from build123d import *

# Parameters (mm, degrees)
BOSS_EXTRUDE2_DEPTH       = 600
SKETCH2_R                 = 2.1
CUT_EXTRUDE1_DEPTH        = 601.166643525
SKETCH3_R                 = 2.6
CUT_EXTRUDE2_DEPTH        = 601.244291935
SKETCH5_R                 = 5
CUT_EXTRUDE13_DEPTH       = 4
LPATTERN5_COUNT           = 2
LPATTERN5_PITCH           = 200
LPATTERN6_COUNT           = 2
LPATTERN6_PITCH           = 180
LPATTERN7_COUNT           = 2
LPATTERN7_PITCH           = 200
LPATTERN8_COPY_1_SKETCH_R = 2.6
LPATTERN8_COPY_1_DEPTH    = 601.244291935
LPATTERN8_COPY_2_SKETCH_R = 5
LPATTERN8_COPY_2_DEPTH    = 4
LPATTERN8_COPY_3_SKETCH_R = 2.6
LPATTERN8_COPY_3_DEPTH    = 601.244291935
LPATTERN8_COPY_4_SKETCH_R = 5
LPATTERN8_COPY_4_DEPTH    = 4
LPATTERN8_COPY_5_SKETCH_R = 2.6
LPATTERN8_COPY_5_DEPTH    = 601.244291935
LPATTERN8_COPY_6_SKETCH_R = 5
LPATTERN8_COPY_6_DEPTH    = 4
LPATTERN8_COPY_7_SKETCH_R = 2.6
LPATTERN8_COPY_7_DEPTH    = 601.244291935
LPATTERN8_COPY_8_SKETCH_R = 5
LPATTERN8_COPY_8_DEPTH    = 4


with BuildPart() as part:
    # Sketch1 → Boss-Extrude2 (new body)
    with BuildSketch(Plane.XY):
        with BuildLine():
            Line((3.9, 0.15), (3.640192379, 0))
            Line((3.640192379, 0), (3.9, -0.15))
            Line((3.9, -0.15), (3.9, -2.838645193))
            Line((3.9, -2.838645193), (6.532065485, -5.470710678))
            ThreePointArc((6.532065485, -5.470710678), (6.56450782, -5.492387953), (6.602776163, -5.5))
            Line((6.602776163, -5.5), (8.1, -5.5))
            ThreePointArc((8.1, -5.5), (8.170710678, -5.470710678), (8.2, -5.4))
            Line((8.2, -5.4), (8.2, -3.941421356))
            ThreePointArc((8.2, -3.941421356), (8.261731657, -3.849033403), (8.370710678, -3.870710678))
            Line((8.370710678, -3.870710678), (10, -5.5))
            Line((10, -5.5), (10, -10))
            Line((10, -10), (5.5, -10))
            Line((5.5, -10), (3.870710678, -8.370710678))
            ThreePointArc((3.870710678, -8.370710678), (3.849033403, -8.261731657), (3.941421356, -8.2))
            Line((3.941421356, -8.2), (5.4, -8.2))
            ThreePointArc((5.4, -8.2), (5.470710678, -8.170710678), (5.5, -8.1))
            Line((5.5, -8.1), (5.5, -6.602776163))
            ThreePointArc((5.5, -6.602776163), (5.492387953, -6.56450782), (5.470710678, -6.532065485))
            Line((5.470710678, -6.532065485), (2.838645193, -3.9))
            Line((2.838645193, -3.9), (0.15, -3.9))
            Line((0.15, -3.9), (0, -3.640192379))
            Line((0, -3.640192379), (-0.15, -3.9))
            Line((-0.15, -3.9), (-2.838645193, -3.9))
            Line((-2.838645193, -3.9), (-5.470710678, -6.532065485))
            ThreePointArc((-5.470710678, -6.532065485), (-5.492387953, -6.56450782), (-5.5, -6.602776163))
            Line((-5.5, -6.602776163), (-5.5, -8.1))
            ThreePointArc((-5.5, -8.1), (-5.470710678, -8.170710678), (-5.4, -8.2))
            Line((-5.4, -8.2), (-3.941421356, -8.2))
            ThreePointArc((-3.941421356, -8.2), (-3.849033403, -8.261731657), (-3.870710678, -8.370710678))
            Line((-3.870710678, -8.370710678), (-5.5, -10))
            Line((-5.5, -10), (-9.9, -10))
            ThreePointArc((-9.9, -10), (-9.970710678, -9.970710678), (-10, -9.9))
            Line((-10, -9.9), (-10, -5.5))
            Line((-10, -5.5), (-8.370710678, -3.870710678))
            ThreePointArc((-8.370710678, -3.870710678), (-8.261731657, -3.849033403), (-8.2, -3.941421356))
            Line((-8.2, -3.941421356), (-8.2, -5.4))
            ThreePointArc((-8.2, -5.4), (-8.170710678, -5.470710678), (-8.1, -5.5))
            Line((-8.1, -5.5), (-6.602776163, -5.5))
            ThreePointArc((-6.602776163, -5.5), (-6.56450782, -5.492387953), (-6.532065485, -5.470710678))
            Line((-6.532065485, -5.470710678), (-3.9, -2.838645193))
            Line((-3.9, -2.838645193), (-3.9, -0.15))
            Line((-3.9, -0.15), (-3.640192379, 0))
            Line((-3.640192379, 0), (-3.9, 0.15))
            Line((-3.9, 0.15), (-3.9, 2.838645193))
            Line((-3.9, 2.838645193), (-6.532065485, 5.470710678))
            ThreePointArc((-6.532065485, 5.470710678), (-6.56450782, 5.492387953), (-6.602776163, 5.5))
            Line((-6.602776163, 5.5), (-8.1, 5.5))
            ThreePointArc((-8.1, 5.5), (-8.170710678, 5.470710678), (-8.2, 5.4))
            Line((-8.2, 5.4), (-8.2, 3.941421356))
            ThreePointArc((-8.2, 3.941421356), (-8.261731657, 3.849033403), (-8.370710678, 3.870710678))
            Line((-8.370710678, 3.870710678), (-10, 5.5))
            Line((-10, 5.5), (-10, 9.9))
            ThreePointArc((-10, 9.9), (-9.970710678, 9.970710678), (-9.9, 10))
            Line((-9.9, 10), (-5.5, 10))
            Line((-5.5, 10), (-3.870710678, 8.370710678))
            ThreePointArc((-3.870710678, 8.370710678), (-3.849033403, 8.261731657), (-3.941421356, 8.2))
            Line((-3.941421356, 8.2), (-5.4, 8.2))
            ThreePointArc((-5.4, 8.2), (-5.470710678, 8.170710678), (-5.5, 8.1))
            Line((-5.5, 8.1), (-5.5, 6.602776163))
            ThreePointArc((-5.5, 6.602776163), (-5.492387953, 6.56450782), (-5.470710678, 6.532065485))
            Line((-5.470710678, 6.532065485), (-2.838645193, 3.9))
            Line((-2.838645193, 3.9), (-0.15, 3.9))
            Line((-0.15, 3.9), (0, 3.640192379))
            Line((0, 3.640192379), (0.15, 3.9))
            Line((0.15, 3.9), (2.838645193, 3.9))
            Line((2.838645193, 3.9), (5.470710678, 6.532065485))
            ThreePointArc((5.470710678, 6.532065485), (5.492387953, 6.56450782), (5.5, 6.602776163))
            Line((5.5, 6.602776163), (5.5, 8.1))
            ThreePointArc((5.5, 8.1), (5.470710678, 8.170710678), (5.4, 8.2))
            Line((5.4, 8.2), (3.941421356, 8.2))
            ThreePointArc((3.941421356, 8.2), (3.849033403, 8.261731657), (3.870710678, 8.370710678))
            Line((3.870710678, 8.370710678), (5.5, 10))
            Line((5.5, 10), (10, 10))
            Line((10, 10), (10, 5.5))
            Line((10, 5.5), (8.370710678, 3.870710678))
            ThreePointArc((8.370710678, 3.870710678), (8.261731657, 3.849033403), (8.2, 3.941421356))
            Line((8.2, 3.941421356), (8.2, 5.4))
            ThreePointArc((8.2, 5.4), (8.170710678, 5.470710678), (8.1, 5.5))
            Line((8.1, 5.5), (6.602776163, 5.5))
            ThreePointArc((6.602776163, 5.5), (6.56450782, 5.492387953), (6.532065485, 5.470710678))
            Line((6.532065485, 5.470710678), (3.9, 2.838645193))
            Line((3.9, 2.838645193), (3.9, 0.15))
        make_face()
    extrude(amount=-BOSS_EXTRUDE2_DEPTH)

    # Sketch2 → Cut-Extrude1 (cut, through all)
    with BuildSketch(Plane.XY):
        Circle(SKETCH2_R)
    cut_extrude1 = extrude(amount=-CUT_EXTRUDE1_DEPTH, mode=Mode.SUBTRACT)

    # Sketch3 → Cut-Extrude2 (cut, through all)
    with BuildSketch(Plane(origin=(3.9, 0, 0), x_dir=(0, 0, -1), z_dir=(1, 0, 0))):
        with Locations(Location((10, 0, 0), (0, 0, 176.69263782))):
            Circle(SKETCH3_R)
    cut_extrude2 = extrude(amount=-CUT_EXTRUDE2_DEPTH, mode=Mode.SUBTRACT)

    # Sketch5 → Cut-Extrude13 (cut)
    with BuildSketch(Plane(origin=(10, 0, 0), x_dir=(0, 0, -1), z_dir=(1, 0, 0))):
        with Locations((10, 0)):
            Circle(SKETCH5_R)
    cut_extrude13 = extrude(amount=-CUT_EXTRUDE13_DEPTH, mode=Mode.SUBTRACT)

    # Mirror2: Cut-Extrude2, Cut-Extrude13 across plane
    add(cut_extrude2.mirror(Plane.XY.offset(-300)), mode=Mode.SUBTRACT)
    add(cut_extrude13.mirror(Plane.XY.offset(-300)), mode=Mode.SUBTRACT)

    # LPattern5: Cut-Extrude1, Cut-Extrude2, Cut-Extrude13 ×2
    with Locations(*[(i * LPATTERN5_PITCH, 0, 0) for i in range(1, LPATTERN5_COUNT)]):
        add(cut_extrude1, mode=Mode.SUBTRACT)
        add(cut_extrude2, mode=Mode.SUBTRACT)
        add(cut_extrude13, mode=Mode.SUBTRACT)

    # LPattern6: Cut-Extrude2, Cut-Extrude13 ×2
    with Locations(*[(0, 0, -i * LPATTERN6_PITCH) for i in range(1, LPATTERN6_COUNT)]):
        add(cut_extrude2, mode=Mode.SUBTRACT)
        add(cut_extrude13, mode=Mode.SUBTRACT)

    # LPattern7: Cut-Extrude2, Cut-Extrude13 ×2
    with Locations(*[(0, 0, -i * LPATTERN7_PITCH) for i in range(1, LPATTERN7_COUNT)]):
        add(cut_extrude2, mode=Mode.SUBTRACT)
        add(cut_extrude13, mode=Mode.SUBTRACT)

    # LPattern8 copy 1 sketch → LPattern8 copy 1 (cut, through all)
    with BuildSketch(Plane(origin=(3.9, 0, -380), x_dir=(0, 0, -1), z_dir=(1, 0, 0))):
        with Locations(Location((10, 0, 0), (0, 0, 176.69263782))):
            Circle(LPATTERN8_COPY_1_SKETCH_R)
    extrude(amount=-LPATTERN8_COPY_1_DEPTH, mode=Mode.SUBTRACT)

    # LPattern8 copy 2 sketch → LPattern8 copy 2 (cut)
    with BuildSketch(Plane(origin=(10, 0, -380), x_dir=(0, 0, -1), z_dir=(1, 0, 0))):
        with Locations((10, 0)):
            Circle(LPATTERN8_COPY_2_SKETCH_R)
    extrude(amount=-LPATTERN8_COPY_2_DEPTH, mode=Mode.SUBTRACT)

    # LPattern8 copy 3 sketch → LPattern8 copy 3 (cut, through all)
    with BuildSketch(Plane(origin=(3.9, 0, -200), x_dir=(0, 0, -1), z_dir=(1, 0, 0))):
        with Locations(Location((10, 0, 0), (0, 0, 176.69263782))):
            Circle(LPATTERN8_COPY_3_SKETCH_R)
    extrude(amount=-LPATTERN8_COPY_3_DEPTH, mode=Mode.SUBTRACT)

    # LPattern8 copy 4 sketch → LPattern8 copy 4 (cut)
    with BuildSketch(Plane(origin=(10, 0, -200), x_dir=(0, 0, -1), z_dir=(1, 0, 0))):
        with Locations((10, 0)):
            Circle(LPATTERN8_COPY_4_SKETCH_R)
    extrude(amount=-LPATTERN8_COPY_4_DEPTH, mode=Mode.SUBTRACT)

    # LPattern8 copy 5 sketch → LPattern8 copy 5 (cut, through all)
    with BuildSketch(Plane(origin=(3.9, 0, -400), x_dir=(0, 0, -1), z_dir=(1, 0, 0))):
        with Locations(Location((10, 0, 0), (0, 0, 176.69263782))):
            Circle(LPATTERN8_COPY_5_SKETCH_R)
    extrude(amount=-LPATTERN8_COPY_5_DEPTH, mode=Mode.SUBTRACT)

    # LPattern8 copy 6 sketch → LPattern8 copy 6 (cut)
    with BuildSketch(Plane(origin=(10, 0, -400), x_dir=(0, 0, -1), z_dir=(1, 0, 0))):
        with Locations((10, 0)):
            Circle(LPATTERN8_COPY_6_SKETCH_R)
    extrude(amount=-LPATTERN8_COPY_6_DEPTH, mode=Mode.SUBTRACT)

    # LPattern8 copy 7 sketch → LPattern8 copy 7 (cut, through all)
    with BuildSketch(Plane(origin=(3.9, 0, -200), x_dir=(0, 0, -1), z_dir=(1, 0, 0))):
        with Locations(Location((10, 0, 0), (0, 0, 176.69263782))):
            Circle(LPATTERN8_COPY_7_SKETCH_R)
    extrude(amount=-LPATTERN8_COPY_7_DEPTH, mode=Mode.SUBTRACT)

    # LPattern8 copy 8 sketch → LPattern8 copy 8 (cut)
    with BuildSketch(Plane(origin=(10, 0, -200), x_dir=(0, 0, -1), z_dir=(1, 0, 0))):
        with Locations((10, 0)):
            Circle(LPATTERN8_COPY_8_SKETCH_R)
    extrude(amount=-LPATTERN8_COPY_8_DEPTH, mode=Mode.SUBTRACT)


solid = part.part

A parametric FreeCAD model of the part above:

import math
import FreeCAD as App
import Part
import Sketcher
from FreeCAD import Vector
Q = App.Units.Quantity

doc = App.newDocument("Part")
body = doc.addObject("PartDesign::Body", "Body")

# Sketch on XY plane
sketch1 = body.newObject("Sketcher::SketchObject", "Sketch")
sketch1.AttachmentSupport = (doc.getObject("XY_Plane"), [""])
sketch1.MapMode = "FlatFace"
sketch1.addGeometry(Part.LineSegment(Vector(3.64, 0, 0), Vector(3.9, 0.15, 0)), False)
sketch1.addGeometry(Part.LineSegment(Vector(3.9, 0.15, 0), Vector(3.9, 2.84, 0)), False)
sketch1.addGeometry(Part.LineSegment(Vector(3.9, 2.84, 0), Vector(6.53, 5.47, 0)), False)
sketch1.addGeometry(Part.ArcOfCircle(Part.Circle(Vector(6.6, 5.4, 0), Vector(0, 0, 1), 0.1), math.radians(90), math.radians(135)), False)
sketch1.addGeometry(Part.LineSegment(Vector(6.6, 5.5, 0), Vector(8.1, 5.5, 0)), False)
sketch1.addGeometry(Part.ArcOfCircle(Part.Circle(Vector(8.1, 5.4, 0), Vector(0, 0, 1), 0.1), math.radians(0), math.radians(90)), False)
sketch1.addGeometry(Part.LineSegment(Vector(8.2, 5.4, 0), Vector(8.2, 3.94, 0)), False)
sketch1.addGeometry(Part.ArcOfCircle(Part.Circle(Vector(8.3, 3.94, 0), Vector(0, 0, 1), 0.1), math.radians(180), math.radians(315)), False)
sketch1.addGeometry(Part.LineSegment(Vector(8.37, 3.87, 0), Vector(10, 5.5, 0)), False)
sketch1.addGeometry(Part.LineSegment(Vector(10, 5.5, 0), Vector(10, 10, 0)), False)
sketch1.addGeometry(Part.LineSegment(Vector(10, 10, 0), Vector(5.5, 10, 0)), False)
sketch1.addGeometry(Part.LineSegment(Vector(5.5, 10, 0), Vector(3.87, 8.37, 0)), False)
sketch1.addGeometry(Part.ArcOfCircle(Part.Circle(Vector(3.94, 8.3, 0), Vector(0, 0, 1), 0.1), math.radians(135), math.radians(270)), False)
sketch1.addGeometry(Part.LineSegment(Vector(3.94, 8.2, 0), Vector(5.4, 8.2, 0)), False)
sketch1.addGeometry(Part.ArcOfCircle(Part.Circle(Vector(5.4, 8.1, 0), Vector(0, 0, 1), 0.1), math.radians(0), math.radians(90)), False)
sketch1.addGeometry(Part.LineSegment(Vector(5.5, 8.1, 0), Vector(5.5, 6.6, 0)), False)
sketch1.addGeometry(Part.ArcOfCircle(Part.Circle(Vector(5.4, 6.6, 0), Vector(0, 0, 1), 0.1), math.radians(-45), math.radians(0)), False)
sketch1.addGeometry(Part.LineSegment(Vector(5.47, 6.53, 0), Vector(2.84, 3.9, 0)), False)
sketch1.addGeometry(Part.LineSegment(Vector(2.84, 3.9, 0), Vector(0.15, 3.9, 0)), False)
sketch1.addGeometry(Part.LineSegment(Vector(0.15, 3.9, 0), Vector(0, 3.64, 0)), False)
sketch1.addGeometry(Part.LineSegment(Vector(0, 3.64, 0), Vector(-0.15, 3.9, 0)), False)
sketch1.addGeometry(Part.LineSegment(Vector(-0.15, 3.9, 0), Vector(-2.84, 3.9, 0)), False)
sketch1.addGeometry(Part.LineSegment(Vector(-2.84, 3.9, 0), Vector(-5.47, 6.53, 0)), False)
sketch1.addGeometry(Part.ArcOfCircle(Part.Circle(Vector(-5.4, 6.6, 0), Vector(0, 0, 1), 0.1), math.radians(-180), math.radians(-135)), False)
sketch1.addGeometry(Part.LineSegment(Vector(-5.5, 6.6, 0), Vector(-5.5, 8.1, 0)), False)
sketch1.addGeometry(Part.ArcOfCircle(Part.Circle(Vector(-5.4, 8.1, 0), Vector(0, 0, 1), 0.1), math.radians(90), math.radians(180)), False)
sketch1.addGeometry(Part.LineSegment(Vector(-5.4, 8.2, 0), Vector(-3.94, 8.2, 0)), False)
sketch1.addGeometry(Part.ArcOfCircle(Part.Circle(Vector(-3.94, 8.3, 0), Vector(0, 0, 1), 0.1), math.radians(-90), math.radians(45)), False)
sketch1.addGeometry(Part.LineSegment(Vector(-3.87, 8.37, 0), Vector(-5.5, 10, 0)), False)
sketch1.addGeometry(Part.LineSegment(Vector(-5.5, 10, 0), Vector(-9.9, 10, 0)), False)
sketch1.addGeometry(Part.ArcOfCircle(Part.Circle(Vector(-9.9, 9.9, 0), Vector(0, 0, 1), 0.1), math.radians(90), math.radians(180)), False)
sketch1.addGeometry(Part.LineSegment(Vector(-10, 9.9, 0), Vector(-10, 5.5, 0)), False)
sketch1.addGeometry(Part.LineSegment(Vector(-10, 5.5, 0), Vector(-8.37, 3.87, 0)), False)
sketch1.addGeometry(Part.ArcOfCircle(Part.Circle(Vector(-8.3, 3.94, 0), Vector(0, 0, 1), 0.1), math.radians(-135), math.radians(0)), False)
sketch1.addGeometry(Part.LineSegment(Vector(-8.2, 3.94, 0), Vector(-8.2, 5.4, 0)), False)
sketch1.addGeometry(Part.ArcOfCircle(Part.Circle(Vector(-8.1, 5.4, 0), Vector(0, 0, 1), 0.1), math.radians(90), math.radians(180)), False)
sketch1.addGeometry(Part.LineSegment(Vector(-8.1, 5.5, 0), Vector(-6.6, 5.5, 0)), False)
sketch1.addGeometry(Part.ArcOfCircle(Part.Circle(Vector(-6.6, 5.4, 0), Vector(0, 0, 1), 0.1), math.radians(45), math.radians(90)), False)
sketch1.addGeometry(Part.LineSegment(Vector(-6.53, 5.47, 0), Vector(-3.9, 2.84, 0)), False)
sketch1.addGeometry(Part.LineSegment(Vector(-3.9, 2.84, 0), Vector(-3.9, 0.15, 0)), False)
sketch1.addGeometry(Part.LineSegment(Vector(-3.9, 0.15, 0), Vector(-3.64, 0, 0)), False)
sketch1.addGeometry(Part.LineSegment(Vector(-3.64, 0, 0), Vector(-3.9, -0.15, 0)), False)
sketch1.addGeometry(Part.LineSegment(Vector(-3.9, -0.15, 0), Vector(-3.9, -2.84, 0)), False)
sketch1.addGeometry(Part.LineSegment(Vector(-3.9, -2.84, 0), Vector(-6.53, -5.47, 0)), False)
sketch1.addGeometry(Part.ArcOfCircle(Part.Circle(Vector(-6.6, -5.4, 0), Vector(0, 0, 1), 0.1), math.radians(-90), math.radians(-45)), False)
sketch1.addGeometry(Part.LineSegment(Vector(-6.6, -5.5, 0), Vector(-8.1, -5.5, 0)), False)
sketch1.addGeometry(Part.ArcOfCircle(Part.Circle(Vector(-8.1, -5.4, 0), Vector(0, 0, 1), 0.1), math.radians(180), math.radians(270)), False)
sketch1.addGeometry(Part.LineSegment(Vector(-8.2, -5.4, 0), Vector(-8.2, -3.94, 0)), False)
sketch1.addGeometry(Part.ArcOfCircle(Part.Circle(Vector(-8.3, -3.94, 0), Vector(0, 0, 1), 0.1), math.radians(0), math.radians(135)), False)
sketch1.addGeometry(Part.LineSegment(Vector(-8.37, -3.87, 0), Vector(-10, -5.5, 0)), False)
sketch1.addGeometry(Part.LineSegment(Vector(-10, -5.5, 0), Vector(-10, -9.9, 0)), False)
sketch1.addGeometry(Part.ArcOfCircle(Part.Circle(Vector(-9.9, -9.9, 0), Vector(0, 0, 1), 0.1), math.radians(180), math.radians(270)), False)
sketch1.addGeometry(Part.LineSegment(Vector(-9.9, -10, 0), Vector(-5.5, -10, 0)), False)
sketch1.addGeometry(Part.LineSegment(Vector(-5.5, -10, 0), Vector(-3.87, -8.37, 0)), False)
sketch1.addGeometry(Part.ArcOfCircle(Part.Circle(Vector(-3.94, -8.3, 0), Vector(0, 0, 1), 0.1), math.radians(-45), math.radians(90)), False)
sketch1.addGeometry(Part.LineSegment(Vector(-3.94, -8.2, 0), Vector(-5.4, -8.2, 0)), False)
sketch1.addGeometry(Part.ArcOfCircle(Part.Circle(Vector(-5.4, -8.1, 0), Vector(0, 0, 1), 0.1), math.radians(180), math.radians(270)), False)
sketch1.addGeometry(Part.LineSegment(Vector(-5.5, -8.1, 0), Vector(-5.5, -6.6, 0)), False)
sketch1.addGeometry(Part.ArcOfCircle(Part.Circle(Vector(-5.4, -6.6, 0), Vector(0, 0, 1), 0.1), math.radians(135), math.radians(180)), False)
sketch1.addGeometry(Part.LineSegment(Vector(-5.47, -6.53, 0), Vector(-2.84, -3.9, 0)), False)
sketch1.addGeometry(Part.LineSegment(Vector(-2.84, -3.9, 0), Vector(-0.15, -3.9, 0)), False)
sketch1.addGeometry(Part.LineSegment(Vector(-0.15, -3.9, 0), Vector(0, -3.64, 0)), False)
sketch1.addGeometry(Part.LineSegment(Vector(0, -3.64, 0), Vector(0.15, -3.9, 0)), False)
sketch1.addGeometry(Part.LineSegment(Vector(0.15, -3.9, 0), Vector(2.84, -3.9, 0)), False)
sketch1.addGeometry(Part.LineSegment(Vector(2.84, -3.9, 0), Vector(5.47, -6.53, 0)), False)
sketch1.addGeometry(Part.ArcOfCircle(Part.Circle(Vector(5.4, -6.6, 0), Vector(0, 0, 1), 0.1), math.radians(0), math.radians(45)), False)
sketch1.addGeometry(Part.LineSegment(Vector(5.5, -6.6, 0), Vector(5.5, -8.1, 0)), False)
sketch1.addGeometry(Part.ArcOfCircle(Part.Circle(Vector(5.4, -8.1, 0), Vector(0, 0, 1), 0.1), math.radians(-90), math.radians(0)), False)
sketch1.addGeometry(Part.LineSegment(Vector(5.4, -8.2, 0), Vector(3.94, -8.2, 0)), False)
sketch1.addGeometry(Part.ArcOfCircle(Part.Circle(Vector(3.94, -8.3, 0), Vector(0, 0, 1), 0.1), math.radians(90), math.radians(225)), False)
sketch1.addGeometry(Part.LineSegment(Vector(3.87, -8.37, 0), Vector(5.5, -10, 0)), False)
sketch1.addGeometry(Part.LineSegment(Vector(5.5, -10, 0), Vector(10, -10, 0)), False)
sketch1.addGeometry(Part.LineSegment(Vector(10, -10, 0), Vector(10, -5.5, 0)), False)
sketch1.addGeometry(Part.LineSegment(Vector(10, -5.5, 0), Vector(8.37, -3.87, 0)), False)
sketch1.addGeometry(Part.ArcOfCircle(Part.Circle(Vector(8.3, -3.94, 0), Vector(0, 0, 1), 0.1), math.radians(45), math.radians(180)), False)
sketch1.addGeometry(Part.LineSegment(Vector(8.2, -3.94, 0), Vector(8.2, -5.4, 0)), False)
sketch1.addGeometry(Part.ArcOfCircle(Part.Circle(Vector(8.1, -5.4, 0), Vector(0, 0, 1), 0.1), math.radians(-90), math.radians(0)), False)
sketch1.addGeometry(Part.LineSegment(Vector(8.1, -5.5, 0), Vector(6.6, -5.5, 0)), False)
sketch1.addGeometry(Part.ArcOfCircle(Part.Circle(Vector(6.6, -5.4, 0), Vector(0, 0, 1), 0.1), math.radians(-135), math.radians(-90)), False)
sketch1.addGeometry(Part.LineSegment(Vector(6.53, -5.47, 0), Vector(3.9, -2.84, 0)), False)
sketch1.addGeometry(Part.LineSegment(Vector(3.9, -2.84, 0), Vector(3.9, -0.15, 0)), False)
sketch1.addGeometry(Part.LineSegment(Vector(3.9, -0.15, 0), Vector(3.64, 0, 0)), False)
sketch1.addConstraint(Sketcher.Constraint("Coincident", 0, 2, 1, 1))
sketch1.addConstraint(Sketcher.Constraint("Coincident", 1, 2, 2, 1))
sketch1.addConstraint(Sketcher.Constraint("Tangent", 2, 2, 3, 2))
sketch1.addConstraint(Sketcher.Constraint("Tangent", 3, 1, 4, 1))
sketch1.addConstraint(Sketcher.Constraint("Tangent", 4, 2, 5, 2))
sketch1.addConstraint(Sketcher.Constraint("Tangent", 5, 1, 6, 1))
sketch1.addConstraint(Sketcher.Constraint("Tangent", 6, 2, 7, 1))
sketch1.addConstraint(Sketcher.Constraint("Tangent", 7, 2, 8, 1))
sketch1.addConstraint(Sketcher.Constraint("Coincident", 8, 2, 9, 1))
sketch1.addConstraint(Sketcher.Constraint("Coincident", 9, 2, 10, 1))
sketch1.addConstraint(Sketcher.Constraint("Coincident", 10, 2, 11, 1))
sketch1.addConstraint(Sketcher.Constraint("Tangent", 11, 2, 12, 1))
sketch1.addConstraint(Sketcher.Constraint("Tangent", 12, 2, 13, 1))
sketch1.addConstraint(Sketcher.Constraint("Tangent", 13, 2, 14, 2))
sketch1.addConstraint(Sketcher.Constraint("Tangent", 14, 1, 15, 1))
sketch1.addConstraint(Sketcher.Constraint("Tangent", 15, 2, 16, 2))
sketch1.addConstraint(Sketcher.Constraint("Tangent", 16, 1, 17, 1))
sketch1.addConstraint(Sketcher.Constraint("Coincident", 17, 2, 18, 1))
sketch1.addConstraint(Sketcher.Constraint("Coincident", 18, 2, 19, 1))
sketch1.addConstraint(Sketcher.Constraint("Coincident", 19, 2, 20, 1))
sketch1.addConstraint(Sketcher.Constraint("Coincident", 20, 2, 21, 1))
sketch1.addConstraint(Sketcher.Constraint("Coincident", 21, 2, 22, 1))
sketch1.addConstraint(Sketcher.Constraint("Tangent", 22, 2, 23, 2))
sketch1.addConstraint(Sketcher.Constraint("Tangent", 23, 1, 24, 1))
sketch1.addConstraint(Sketcher.Constraint("Tangent", 24, 2, 25, 2))
sketch1.addConstraint(Sketcher.Constraint("Tangent", 25, 1, 26, 1))
sketch1.addConstraint(Sketcher.Constraint("Tangent", 26, 2, 27, 1))
sketch1.addConstraint(Sketcher.Constraint("Tangent", 27, 2, 28, 1))
sketch1.addConstraint(Sketcher.Constraint("Coincident", 28, 2, 29, 1))
sketch1.addConstraint(Sketcher.Constraint("Tangent", 29, 2, 30, 1))
sketch1.addConstraint(Sketcher.Constraint("Tangent", 30, 2, 31, 1))
sketch1.addConstraint(Sketcher.Constraint("Coincident", 31, 2, 32, 1))
sketch1.addConstraint(Sketcher.Constraint("Tangent", 32, 2, 33, 1))
sketch1.addConstraint(Sketcher.Constraint("Tangent", 33, 2, 34, 1))
sketch1.addConstraint(Sketcher.Constraint("Tangent", 34, 2, 35, 2))
sketch1.addConstraint(Sketcher.Constraint("Tangent", 35, 1, 36, 1))
sketch1.addConstraint(Sketcher.Constraint("Tangent", 36, 2, 37, 2))
sketch1.addConstraint(Sketcher.Constraint("Tangent", 37, 1, 38, 1))
sketch1.addConstraint(Sketcher.Constraint("Coincident", 38, 2, 39, 1))
sketch1.addConstraint(Sketcher.Constraint("Coincident", 39, 2, 40, 1))
sketch1.addConstraint(Sketcher.Constraint("Coincident", 40, 2, 41, 1))
sketch1.addConstraint(Sketcher.Constraint("Coincident", 41, 2, 42, 1))
sketch1.addConstraint(Sketcher.Constraint("Coincident", 42, 2, 43, 1))
sketch1.addConstraint(Sketcher.Constraint("Tangent", 43, 2, 44, 2))
sketch1.addConstraint(Sketcher.Constraint("Tangent", 44, 1, 45, 1))
sketch1.addConstraint(Sketcher.Constraint("Tangent", 45, 2, 46, 2))
sketch1.addConstraint(Sketcher.Constraint("Tangent", 46, 1, 47, 1))
sketch1.addConstraint(Sketcher.Constraint("Tangent", 47, 2, 48, 1))
sketch1.addConstraint(Sketcher.Constraint("Tangent", 48, 2, 49, 1))
sketch1.addConstraint(Sketcher.Constraint("Coincident", 49, 2, 50, 1))
sketch1.addConstraint(Sketcher.Constraint("Tangent", 50, 2, 51, 1))
sketch1.addConstraint(Sketcher.Constraint("Tangent", 51, 2, 52, 1))
sketch1.addConstraint(Sketcher.Constraint("Coincident", 52, 2, 53, 1))
sketch1.addConstraint(Sketcher.Constraint("Tangent", 53, 2, 54, 1))
sketch1.addConstraint(Sketcher.Constraint("Tangent", 54, 2, 55, 1))
sketch1.addConstraint(Sketcher.Constraint("Tangent", 55, 2, 56, 2))
sketch1.addConstraint(Sketcher.Constraint("Tangent", 56, 1, 57, 1))
sketch1.addConstraint(Sketcher.Constraint("Tangent", 57, 2, 58, 2))
sketch1.addConstraint(Sketcher.Constraint("Tangent", 58, 1, 59, 1))
sketch1.addConstraint(Sketcher.Constraint("Coincident", 59, 2, 60, 1))
sketch1.addConstraint(Sketcher.Constraint("Coincident", 60, 2, 61, 1))
sketch1.addConstraint(Sketcher.Constraint("Coincident", 61, 2, 62, 1))
sketch1.addConstraint(Sketcher.Constraint("Coincident", 62, 2, 63, 1))
sketch1.addConstraint(Sketcher.Constraint("Coincident", 63, 2, 64, 1))
sketch1.addConstraint(Sketcher.Constraint("Tangent", 64, 2, 65, 2))
sketch1.addConstraint(Sketcher.Constraint("Tangent", 65, 1, 66, 1))
sketch1.addConstraint(Sketcher.Constraint("Tangent", 66, 2, 67, 2))
sketch1.addConstraint(Sketcher.Constraint("Tangent", 67, 1, 68, 1))
sketch1.addConstraint(Sketcher.Constraint("Tangent", 68, 2, 69, 1))
sketch1.addConstraint(Sketcher.Constraint("Tangent", 69, 2, 70, 1))
sketch1.addConstraint(Sketcher.Constraint("Coincident", 70, 2, 71, 1))
sketch1.addConstraint(Sketcher.Constraint("Coincident", 71, 2, 72, 1))
sketch1.addConstraint(Sketcher.Constraint("Coincident", 72, 2, 73, 1))
sketch1.addConstraint(Sketcher.Constraint("Tangent", 73, 2, 74, 1))
sketch1.addConstraint(Sketcher.Constraint("Tangent", 74, 2, 75, 1))
sketch1.addConstraint(Sketcher.Constraint("Tangent", 75, 2, 76, 2))
sketch1.addConstraint(Sketcher.Constraint("Tangent", 76, 1, 77, 1))
sketch1.addConstraint(Sketcher.Constraint("Tangent", 77, 2, 78, 2))
sketch1.addConstraint(Sketcher.Constraint("Tangent", 78, 1, 79, 1))
sketch1.addConstraint(Sketcher.Constraint("Coincident", 79, 2, 80, 1))
sketch1.addConstraint(Sketcher.Constraint("Coincident", 80, 2, 81, 1))
sketch1.addConstraint(Sketcher.Constraint("Coincident", 81, 2, 0, 1))
sketch1.addConstraint(Sketcher.Constraint("Vertical", 1))
sketch1.addConstraint(Sketcher.Constraint("Horizontal", 4))
sketch1.addConstraint(Sketcher.Constraint("Vertical", 6))
sketch1.addConstraint(Sketcher.Constraint("Vertical", 9))
sketch1.addConstraint(Sketcher.Constraint("Horizontal", 10))
sketch1.addConstraint(Sketcher.Constraint("Horizontal", 13))
sketch1.addConstraint(Sketcher.Constraint("Vertical", 15))
sketch1.addConstraint(Sketcher.Constraint("Horizontal", 18))
sketch1.addConstraint(Sketcher.Constraint("Horizontal", 21))
sketch1.addConstraint(Sketcher.Constraint("Vertical", 24))
sketch1.addConstraint(Sketcher.Constraint("Horizontal", 26))
sketch1.addConstraint(Sketcher.Constraint("Horizontal", 29))
sketch1.addConstraint(Sketcher.Constraint("Vertical", 31))
sketch1.addConstraint(Sketcher.Constraint("Vertical", 34))
sketch1.addConstraint(Sketcher.Constraint("Horizontal", 36))
sketch1.addConstraint(Sketcher.Constraint("Vertical", 39))
sketch1.addConstraint(Sketcher.Constraint("Vertical", 42))
sketch1.addConstraint(Sketcher.Constraint("Horizontal", 45))
sketch1.addConstraint(Sketcher.Constraint("Vertical", 47))
sketch1.addConstraint(Sketcher.Constraint("Vertical", 50))
sketch1.addConstraint(Sketcher.Constraint("Horizontal", 52))
sketch1.addConstraint(Sketcher.Constraint("Horizontal", 55))
sketch1.addConstraint(Sketcher.Constraint("Vertical", 57))
sketch1.addConstraint(Sketcher.Constraint("Horizontal", 60))
sketch1.addConstraint(Sketcher.Constraint("Horizontal", 63))
sketch1.addConstraint(Sketcher.Constraint("Vertical", 66))
sketch1.addConstraint(Sketcher.Constraint("Horizontal", 68))
sketch1.addConstraint(Sketcher.Constraint("Horizontal", 71))
sketch1.addConstraint(Sketcher.Constraint("Vertical", 72))
sketch1.addConstraint(Sketcher.Constraint("Vertical", 75))
sketch1.addConstraint(Sketcher.Constraint("Horizontal", 77))
sketch1.addConstraint(Sketcher.Constraint("Vertical", 80))
sketch1.addConstraint(Sketcher.Constraint("Equal", 3, 5))
sketch1.addConstraint(Sketcher.Constraint("Equal", 5, 7))
sketch1.addConstraint(Sketcher.Constraint("Equal", 7, 12))
sketch1.addConstraint(Sketcher.Constraint("Equal", 12, 14))
sketch1.addConstraint(Sketcher.Constraint("Equal", 14, 16))
sketch1.addConstraint(Sketcher.Constraint("Equal", 16, 23))
sketch1.addConstraint(Sketcher.Constraint("Equal", 23, 25))
sketch1.addConstraint(Sketcher.Constraint("Equal", 25, 27))
sketch1.addConstraint(Sketcher.Constraint("Equal", 27, 30))
sketch1.addConstraint(Sketcher.Constraint("Equal", 30, 33))
sketch1.addConstraint(Sketcher.Constraint("Equal", 33, 35))
sketch1.addConstraint(Sketcher.Constraint("Equal", 35, 37))
sketch1.addConstraint(Sketcher.Constraint("Equal", 37, 44))
sketch1.addConstraint(Sketcher.Constraint("Equal", 44, 46))
sketch1.addConstraint(Sketcher.Constraint("Equal", 46, 48))
sketch1.addConstraint(Sketcher.Constraint("Equal", 48, 51))
sketch1.addConstraint(Sketcher.Constraint("Equal", 51, 54))
sketch1.addConstraint(Sketcher.Constraint("Equal", 54, 56))
sketch1.addConstraint(Sketcher.Constraint("Equal", 56, 58))
sketch1.addConstraint(Sketcher.Constraint("Equal", 58, 65))
sketch1.addConstraint(Sketcher.Constraint("Equal", 65, 67))
sketch1.addConstraint(Sketcher.Constraint("Equal", 67, 69))
sketch1.addConstraint(Sketcher.Constraint("Equal", 69, 74))
sketch1.addConstraint(Sketcher.Constraint("Equal", 74, 76))
sketch1.addConstraint(Sketcher.Constraint("Equal", 76, 78))
sketch1.addConstraint(Sketcher.Constraint("Symmetric", 3, 3, 44, 3, -1, 1))
sketch1.addConstraint(Sketcher.Constraint("Symmetric", 7, 3, 48, 3, -1, 1))
sketch1.addConstraint(Sketcher.Constraint("Symmetric", 12, 3, 54, 3, -1, 1))
sketch1.addConstraint(Sketcher.Constraint("Symmetric", 16, 3, 58, 3, -1, 1))
sketch1.addConstraint(Sketcher.Constraint("Symmetric", 23, 3, 65, 3, -1, 1))
sketch1.addConstraint(Sketcher.Constraint("Symmetric", 27, 3, 69, 3, -1, 1))
sketch1.addConstraint(Sketcher.Constraint("Symmetric", 33, 3, 74, 3, -1, 1))
sketch1.addConstraint(Sketcher.Constraint("Symmetric", 37, 3, 78, 3, -1, 1))
sketch1.addConstraint(Sketcher.Constraint("Symmetric", 0, 2, 41, 2, -1, 1))
sketch1.addConstraint(Sketcher.Constraint("Symmetric", 8, 2, 49, 2, -1, 1))
sketch1.addConstraint(Sketcher.Constraint("Symmetric", 10, 2, 52, 2, -1, 1))
sketch1.addConstraint(Sketcher.Constraint("Symmetric", 17, 2, 59, 2, -1, 1))
sketch1.addConstraint(Sketcher.Constraint("Symmetric", 19, 2, 61, 2, -1, 1))
sketch1.addConstraint(Sketcher.Constraint("Symmetric", 20, 2, 62, 2, -1, 1))
sketch1.addConstraint(Sketcher.Constraint("Symmetric", 28, 2, 70, 2, -1, 1))
sketch1.addConstraint(Sketcher.Constraint("Symmetric", 31, 2, 72, 2, -1, 1))
sketch1.addConstraint(Sketcher.Constraint("Symmetric", 38, 2, 79, 2, -1, 1))
sketch1.addConstraint(Sketcher.Constraint("Symmetric", 40, 2, 81, 2, -1, 1))
sketch1.addConstraint(Sketcher.Constraint("Symmetric", 16, 3, 23, 3, -2))
sketch1.addConstraint(Sketcher.Constraint("Symmetric", 12, 3, 27, 3, -2))
sketch1.addConstraint(Sketcher.Constraint("Symmetric", 7, 3, 33, 3, -2))
sketch1.addConstraint(Sketcher.Constraint("Symmetric", 3, 3, 37, 3, -2))
sketch1.addConstraint(Sketcher.Constraint("Symmetric", 18, 2, 20, 2, -2))
sketch1.addConstraint(Sketcher.Constraint("Symmetric", 10, 2, 28, 2, -2))
sketch1.addConstraint(Sketcher.Constraint("Symmetric", 8, 2, 31, 2, -2))
sketch1.addConstraint(Sketcher.Constraint("Symmetric", 1, 2, 38, 2, -2))
sketch1.addConstraint(Sketcher.Constraint("PointOnObject", 19, 2, -2))
sketch1.addConstraint(Sketcher.Constraint("PointOnObject", 40, 2, -1))
sketch1.addConstraint(Sketcher.Constraint("Parallel", 2, 8))
sketch1.addConstraint(Sketcher.Constraint("Parallel", 8, 11))
sketch1.addConstraint(Sketcher.Constraint("Parallel", 11, 17))
sketch1.addConstraint(Sketcher.Constraint("Perpendicular", 0, 20))
sketch1.addConstraint(Sketcher.Constraint("Perpendicular", 17, 22))
sketch1.addConstraint(Sketcher.Constraint("Parallel", 22, 28))
sketch1.addConstraint(Sketcher.Constraint("Perpendicular", 19, 40))
sketch1.addConstraint(Sketcher.Constraint("Perpendicular", 38, 43))
sketch1.addConstraint(Sketcher.Constraint("Perpendicular", 40, 61))
sketch1.addConstraint(Sketcher.Constraint("Perpendicular", 59, 64))
sketch1.addConstraint(Sketcher.Constraint("Perpendicular", 61, 81))
sketch1.addConstraint(Sketcher.Constraint("Horizontal", 4, 2, 8, 2))
sketch1.addConstraint(Sketcher.Constraint("Vertical", 10, 2, 14, 1))
sketch1.addConstraint(Sketcher.Constraint("Equal", 63, 1))
sketch1.addConstraint(Sketcher.Constraint("Equal", 68, 6))
sketch1.addConstraint(Sketcher.Constraint("Equal", 71, 9))
sketch1.addConstraint(Sketcher.Constraint("Equal", 77, 15))
sketch1.addConstraint(Sketcher.Constraint("Equal", 2, 17))
sketch1.addConstraint(Sketcher.Constraint("Equal", 0, 19))
sketch1.addConstraint(Sketcher.Constraint("Radius", 3, Q("0.1 mm")))
sketch1.addConstraint(Sketcher.Constraint("Angle", 0, Q("30 deg")))
sketch1.addConstraint(Sketcher.Constraint("DistanceX", 10, 2, 10, 1, Q("4.5 mm")))
sketch1.addConstraint(Sketcher.Constraint("DistanceX", -1, 1, 8, 2, Q("10 mm")))
sketch1.addConstraint(Sketcher.Constraint("Distance", 0, Q("0.3 mm")))
sketch1.addConstraint(Sketcher.Constraint("DistanceX", -1, 1, 5, 3, Q("8.1 mm")))
sketch1.addConstraint(Sketcher.Constraint("DistanceX", -1, 1, 0, 2, Q("3.9 mm")))
sketch1.addConstraint(Sketcher.Constraint("DistanceX", 4, 1, 4, 2, Q("1.497224 mm")))
pad1 = body.newObject("PartDesign::Pad", "Pad")
pad1.Profile = sketch1
pad1.Length = 600
pad1.Reversed = True

# Sketch on XY plane
sketch2 = body.newObject("Sketcher::SketchObject", "Sketch001")
sketch2.AttachmentSupport = (doc.getObject("XY_Plane"), [""])
sketch2.MapMode = "FlatFace"
sketch2.addGeometry(Part.Circle(Vector(0, 0, 0), Vector(0, 0, 1), 2.1), False)
sketch2.addConstraint(Sketcher.Constraint("Coincident", 0, 3, -1, 1))
sketch2.addConstraint(Sketcher.Constraint("Diameter", 0, Q("4.2 mm")))
pocket1 = body.newObject("PartDesign::Pocket", "Pocket")
pocket1.Profile = sketch2
pocket1.Type = "ThroughAll"

# Sketch on YZ plane
sketch3 = body.newObject("Sketcher::SketchObject", "Sketch002")
sketch3.AttachmentSupport = (doc.getObject("YZ_Plane"), [""])
sketch3.MapMode = "FlatFace"
sketch3.AttachmentOffset = App.Placement(Vector(0, 0, 3.9), App.Rotation())
sketch3.addGeometry(Part.Circle(Vector(0, -10, 0), Vector(0, 0, 1), 2.6), False)
sketch3.addConstraint(Sketcher.Constraint("PointOnObject", 0, 3, -2))
sketch3.addConstraint(Sketcher.Constraint("Diameter", 0, Q("5.2 mm")))
sketch3.addConstraint(Sketcher.Constraint("DistanceY", 0, 3, -1, 1, Q("10 mm")))
pocket2 = body.newObject("PartDesign::Pocket", "Pocket001")
pocket2.Profile = sketch3
pocket2.Type = "ThroughAll"

# Sketch on YZ plane
sketch4 = body.newObject("Sketcher::SketchObject", "Sketch003")
sketch4.AttachmentSupport = (doc.getObject("YZ_Plane"), [""])
sketch4.MapMode = "FlatFace"
sketch4.AttachmentOffset = App.Placement(Vector(0, 0, 10), App.Rotation())
sketch4.addGeometry(Part.Circle(Vector(0, -10, 0), Vector(0, 0, 1), 5), False)
sketch4.addConstraint(Sketcher.Constraint("PointOnObject", 0, 3, -2))
sketch4.addConstraint(Sketcher.Constraint("Diameter", 0, Q("10 mm")))
sketch4.addConstraint(Sketcher.Constraint("DistanceY", 0, 3, -1, 1, Q("10 mm")))
pocket3 = body.newObject("PartDesign::Pocket", "Pocket002")
pocket3.Profile = sketch4
pocket3.Length = 4
doc.recompute()

datumplane = body.newObject("PartDesign::Plane", "DatumPlane")
datumplane.AttachmentSupport = (doc.getObject("XY_Plane"), [""])
datumplane.MapMode = "FlatFace"
datumplane.AttachmentOffset = App.Placement(Vector(0, 0, -300), App.Rotation())
mirrored = body.newObject("PartDesign::Mirrored", "Mirrored")
mirrored.Originals = [pocket2, pocket3]
mirrored.MirrorPlane = (datumplane, [""])
body.Tip = mirrored
doc.recompute()

linearpattern = body.newObject("PartDesign::LinearPattern", "LinearPattern")
linearpattern.Originals = [pocket1, pocket2, pocket3]
linearpattern.Direction = (doc.getObject("X_Axis"), [""])
linearpattern.Mode = "offset"
linearpattern.Offset = 200
linearpattern.Occurrences = 2
body.Tip = linearpattern
doc.recompute()

linearpattern2 = body.newObject("PartDesign::LinearPattern", "LinearPattern001")
linearpattern2.Originals = [pocket2, pocket3]
linearpattern2.Direction = (doc.getObject("Z_Axis"), [""])
linearpattern2.Mode = "offset"
linearpattern2.Offset = 180
linearpattern2.Occurrences = 2
linearpattern2.Reversed = True
body.Tip = linearpattern2
doc.recompute()

linearpattern3 = body.newObject("PartDesign::LinearPattern", "LinearPattern002")
linearpattern3.Originals = [pocket2, pocket3]
linearpattern3.Direction = (doc.getObject("Z_Axis"), [""])
linearpattern3.Mode = "offset"
linearpattern3.Offset = 200
linearpattern3.Occurrences = 2
linearpattern3.Reversed = True
body.Tip = linearpattern3

# Sketch on YZ plane
sketch5 = body.newObject("Sketcher::SketchObject", "Sketch004")
sketch5.AttachmentSupport = (doc.getObject("YZ_Plane"), [""])
sketch5.MapMode = "FlatFace"
sketch5.AttachmentOffset = App.Placement(Vector(0, 0, 3.9), App.Rotation())
sketch5.addGeometry(Part.Circle(Vector(0, -390, 0), Vector(0, 0, 1), 2.6), False)
sketch5.addConstraint(Sketcher.Constraint("PointOnObject", 0, 3, -2))
sketch5.addConstraint(Sketcher.Constraint("Diameter", 0, Q("5.2 mm")))
sketch5.addConstraint(Sketcher.Constraint("DistanceY", 0, 3, -1, 1, Q("390 mm")))
pocket4 = body.newObject("PartDesign::Pocket", "Pocket003")
pocket4.Profile = sketch5
pocket4.Type = "ThroughAll"

# Sketch on YZ plane
sketch6 = body.newObject("Sketcher::SketchObject", "Sketch005")
sketch6.AttachmentSupport = (doc.getObject("YZ_Plane"), [""])
sketch6.MapMode = "FlatFace"
sketch6.AttachmentOffset = App.Placement(Vector(0, 0, 10), App.Rotation())
sketch6.addGeometry(Part.Circle(Vector(0, -390, 0), Vector(0, 0, 1), 5), False)
sketch6.addConstraint(Sketcher.Constraint("PointOnObject", 0, 3, -2))
sketch6.addConstraint(Sketcher.Constraint("Diameter", 0, Q("10 mm")))
sketch6.addConstraint(Sketcher.Constraint("DistanceY", 0, 3, -1, 1, Q("390 mm")))
pocket5 = body.newObject("PartDesign::Pocket", "Pocket004")
pocket5.Profile = sketch6
pocket5.Length = 4

# Sketch on YZ plane
sketch7 = body.newObject("Sketcher::SketchObject", "Sketch006")
sketch7.AttachmentSupport = (doc.getObject("YZ_Plane"), [""])
sketch7.MapMode = "FlatFace"
sketch7.AttachmentOffset = App.Placement(Vector(0, 0, 3.9), App.Rotation())
sketch7.addGeometry(Part.Circle(Vector(0, -210, 0), Vector(0, 0, 1), 2.6), False)
sketch7.addConstraint(Sketcher.Constraint("PointOnObject", 0, 3, -2))
sketch7.addConstraint(Sketcher.Constraint("Diameter", 0, Q("5.2 mm")))
sketch7.addConstraint(Sketcher.Constraint("DistanceY", 0, 3, -1, 1, Q("210 mm")))
pocket6 = body.newObject("PartDesign::Pocket", "Pocket005")
pocket6.Profile = sketch7
pocket6.Type = "ThroughAll"

# Sketch on YZ plane
sketch8 = body.newObject("Sketcher::SketchObject", "Sketch007")
sketch8.AttachmentSupport = (doc.getObject("YZ_Plane"), [""])
sketch8.MapMode = "FlatFace"
sketch8.AttachmentOffset = App.Placement(Vector(0, 0, 10), App.Rotation())
sketch8.addGeometry(Part.Circle(Vector(0, -210, 0), Vector(0, 0, 1), 5), False)
sketch8.addConstraint(Sketcher.Constraint("PointOnObject", 0, 3, -2))
sketch8.addConstraint(Sketcher.Constraint("Diameter", 0, Q("10 mm")))
sketch8.addConstraint(Sketcher.Constraint("DistanceY", 0, 3, -1, 1, Q("210 mm")))
pocket7 = body.newObject("PartDesign::Pocket", "Pocket006")
pocket7.Profile = sketch8
pocket7.Length = 4

# Sketch on YZ plane
sketch9 = body.newObject("Sketcher::SketchObject", "Sketch008")
sketch9.AttachmentSupport = (doc.getObject("YZ_Plane"), [""])
sketch9.MapMode = "FlatFace"
sketch9.AttachmentOffset = App.Placement(Vector(0, 0, 3.9), App.Rotation())
sketch9.addGeometry(Part.Circle(Vector(0, -410, 0), Vector(0, 0, 1), 2.6), False)
sketch9.addConstraint(Sketcher.Constraint("PointOnObject", 0, 3, -2))
sketch9.addConstraint(Sketcher.Constraint("Diameter", 0, Q("5.2 mm")))
sketch9.addConstraint(Sketcher.Constraint("DistanceY", 0, 3, -1, 1, Q("410 mm")))
pocket8 = body.newObject("PartDesign::Pocket", "Pocket007")
pocket8.Profile = sketch9
pocket8.Type = "ThroughAll"

# Sketch on YZ plane
sketch10 = body.newObject("Sketcher::SketchObject", "Sketch009")
sketch10.AttachmentSupport = (doc.getObject("YZ_Plane"), [""])
sketch10.MapMode = "FlatFace"
sketch10.AttachmentOffset = App.Placement(Vector(0, 0, 10), App.Rotation())
sketch10.addGeometry(Part.Circle(Vector(0, -410, 0), Vector(0, 0, 1), 5), False)
sketch10.addConstraint(Sketcher.Constraint("PointOnObject", 0, 3, -2))
sketch10.addConstraint(Sketcher.Constraint("Diameter", 0, Q("10 mm")))
sketch10.addConstraint(Sketcher.Constraint("DistanceY", 0, 3, -1, 1, Q("410 mm")))
pocket9 = body.newObject("PartDesign::Pocket", "Pocket008")
pocket9.Profile = sketch10
pocket9.Length = 4

# Sketch on YZ plane
sketch11 = body.newObject("Sketcher::SketchObject", "Sketch010")
sketch11.AttachmentSupport = (doc.getObject("YZ_Plane"), [""])
sketch11.MapMode = "FlatFace"
sketch11.AttachmentOffset = App.Placement(Vector(0, 0, 3.9), App.Rotation())
sketch11.addGeometry(Part.Circle(Vector(0, -210, 0), Vector(0, 0, 1), 2.6), False)
sketch11.addConstraint(Sketcher.Constraint("PointOnObject", 0, 3, -2))
sketch11.addConstraint(Sketcher.Constraint("Diameter", 0, Q("5.2 mm")))
sketch11.addConstraint(Sketcher.Constraint("DistanceY", 0, 3, -1, 1, Q("210 mm")))
pocket10 = body.newObject("PartDesign::Pocket", "Pocket009")
pocket10.Profile = sketch11
pocket10.Type = "ThroughAll"

# Sketch on YZ plane
sketch12 = body.newObject("Sketcher::SketchObject", "Sketch011")
sketch12.AttachmentSupport = (doc.getObject("YZ_Plane"), [""])
sketch12.MapMode = "FlatFace"
sketch12.AttachmentOffset = App.Placement(Vector(0, 0, 10), App.Rotation())
sketch12.addGeometry(Part.Circle(Vector(0, -210, 0), Vector(0, 0, 1), 5), False)
sketch12.addConstraint(Sketcher.Constraint("PointOnObject", 0, 3, -2))
sketch12.addConstraint(Sketcher.Constraint("Diameter", 0, Q("10 mm")))
sketch12.addConstraint(Sketcher.Constraint("DistanceY", 0, 3, -1, 1, Q("210 mm")))
pocket11 = body.newObject("PartDesign::Pocket", "Pocket010")
pocket11.Profile = sketch12
pocket11.Length = 4

doc.recompute()
